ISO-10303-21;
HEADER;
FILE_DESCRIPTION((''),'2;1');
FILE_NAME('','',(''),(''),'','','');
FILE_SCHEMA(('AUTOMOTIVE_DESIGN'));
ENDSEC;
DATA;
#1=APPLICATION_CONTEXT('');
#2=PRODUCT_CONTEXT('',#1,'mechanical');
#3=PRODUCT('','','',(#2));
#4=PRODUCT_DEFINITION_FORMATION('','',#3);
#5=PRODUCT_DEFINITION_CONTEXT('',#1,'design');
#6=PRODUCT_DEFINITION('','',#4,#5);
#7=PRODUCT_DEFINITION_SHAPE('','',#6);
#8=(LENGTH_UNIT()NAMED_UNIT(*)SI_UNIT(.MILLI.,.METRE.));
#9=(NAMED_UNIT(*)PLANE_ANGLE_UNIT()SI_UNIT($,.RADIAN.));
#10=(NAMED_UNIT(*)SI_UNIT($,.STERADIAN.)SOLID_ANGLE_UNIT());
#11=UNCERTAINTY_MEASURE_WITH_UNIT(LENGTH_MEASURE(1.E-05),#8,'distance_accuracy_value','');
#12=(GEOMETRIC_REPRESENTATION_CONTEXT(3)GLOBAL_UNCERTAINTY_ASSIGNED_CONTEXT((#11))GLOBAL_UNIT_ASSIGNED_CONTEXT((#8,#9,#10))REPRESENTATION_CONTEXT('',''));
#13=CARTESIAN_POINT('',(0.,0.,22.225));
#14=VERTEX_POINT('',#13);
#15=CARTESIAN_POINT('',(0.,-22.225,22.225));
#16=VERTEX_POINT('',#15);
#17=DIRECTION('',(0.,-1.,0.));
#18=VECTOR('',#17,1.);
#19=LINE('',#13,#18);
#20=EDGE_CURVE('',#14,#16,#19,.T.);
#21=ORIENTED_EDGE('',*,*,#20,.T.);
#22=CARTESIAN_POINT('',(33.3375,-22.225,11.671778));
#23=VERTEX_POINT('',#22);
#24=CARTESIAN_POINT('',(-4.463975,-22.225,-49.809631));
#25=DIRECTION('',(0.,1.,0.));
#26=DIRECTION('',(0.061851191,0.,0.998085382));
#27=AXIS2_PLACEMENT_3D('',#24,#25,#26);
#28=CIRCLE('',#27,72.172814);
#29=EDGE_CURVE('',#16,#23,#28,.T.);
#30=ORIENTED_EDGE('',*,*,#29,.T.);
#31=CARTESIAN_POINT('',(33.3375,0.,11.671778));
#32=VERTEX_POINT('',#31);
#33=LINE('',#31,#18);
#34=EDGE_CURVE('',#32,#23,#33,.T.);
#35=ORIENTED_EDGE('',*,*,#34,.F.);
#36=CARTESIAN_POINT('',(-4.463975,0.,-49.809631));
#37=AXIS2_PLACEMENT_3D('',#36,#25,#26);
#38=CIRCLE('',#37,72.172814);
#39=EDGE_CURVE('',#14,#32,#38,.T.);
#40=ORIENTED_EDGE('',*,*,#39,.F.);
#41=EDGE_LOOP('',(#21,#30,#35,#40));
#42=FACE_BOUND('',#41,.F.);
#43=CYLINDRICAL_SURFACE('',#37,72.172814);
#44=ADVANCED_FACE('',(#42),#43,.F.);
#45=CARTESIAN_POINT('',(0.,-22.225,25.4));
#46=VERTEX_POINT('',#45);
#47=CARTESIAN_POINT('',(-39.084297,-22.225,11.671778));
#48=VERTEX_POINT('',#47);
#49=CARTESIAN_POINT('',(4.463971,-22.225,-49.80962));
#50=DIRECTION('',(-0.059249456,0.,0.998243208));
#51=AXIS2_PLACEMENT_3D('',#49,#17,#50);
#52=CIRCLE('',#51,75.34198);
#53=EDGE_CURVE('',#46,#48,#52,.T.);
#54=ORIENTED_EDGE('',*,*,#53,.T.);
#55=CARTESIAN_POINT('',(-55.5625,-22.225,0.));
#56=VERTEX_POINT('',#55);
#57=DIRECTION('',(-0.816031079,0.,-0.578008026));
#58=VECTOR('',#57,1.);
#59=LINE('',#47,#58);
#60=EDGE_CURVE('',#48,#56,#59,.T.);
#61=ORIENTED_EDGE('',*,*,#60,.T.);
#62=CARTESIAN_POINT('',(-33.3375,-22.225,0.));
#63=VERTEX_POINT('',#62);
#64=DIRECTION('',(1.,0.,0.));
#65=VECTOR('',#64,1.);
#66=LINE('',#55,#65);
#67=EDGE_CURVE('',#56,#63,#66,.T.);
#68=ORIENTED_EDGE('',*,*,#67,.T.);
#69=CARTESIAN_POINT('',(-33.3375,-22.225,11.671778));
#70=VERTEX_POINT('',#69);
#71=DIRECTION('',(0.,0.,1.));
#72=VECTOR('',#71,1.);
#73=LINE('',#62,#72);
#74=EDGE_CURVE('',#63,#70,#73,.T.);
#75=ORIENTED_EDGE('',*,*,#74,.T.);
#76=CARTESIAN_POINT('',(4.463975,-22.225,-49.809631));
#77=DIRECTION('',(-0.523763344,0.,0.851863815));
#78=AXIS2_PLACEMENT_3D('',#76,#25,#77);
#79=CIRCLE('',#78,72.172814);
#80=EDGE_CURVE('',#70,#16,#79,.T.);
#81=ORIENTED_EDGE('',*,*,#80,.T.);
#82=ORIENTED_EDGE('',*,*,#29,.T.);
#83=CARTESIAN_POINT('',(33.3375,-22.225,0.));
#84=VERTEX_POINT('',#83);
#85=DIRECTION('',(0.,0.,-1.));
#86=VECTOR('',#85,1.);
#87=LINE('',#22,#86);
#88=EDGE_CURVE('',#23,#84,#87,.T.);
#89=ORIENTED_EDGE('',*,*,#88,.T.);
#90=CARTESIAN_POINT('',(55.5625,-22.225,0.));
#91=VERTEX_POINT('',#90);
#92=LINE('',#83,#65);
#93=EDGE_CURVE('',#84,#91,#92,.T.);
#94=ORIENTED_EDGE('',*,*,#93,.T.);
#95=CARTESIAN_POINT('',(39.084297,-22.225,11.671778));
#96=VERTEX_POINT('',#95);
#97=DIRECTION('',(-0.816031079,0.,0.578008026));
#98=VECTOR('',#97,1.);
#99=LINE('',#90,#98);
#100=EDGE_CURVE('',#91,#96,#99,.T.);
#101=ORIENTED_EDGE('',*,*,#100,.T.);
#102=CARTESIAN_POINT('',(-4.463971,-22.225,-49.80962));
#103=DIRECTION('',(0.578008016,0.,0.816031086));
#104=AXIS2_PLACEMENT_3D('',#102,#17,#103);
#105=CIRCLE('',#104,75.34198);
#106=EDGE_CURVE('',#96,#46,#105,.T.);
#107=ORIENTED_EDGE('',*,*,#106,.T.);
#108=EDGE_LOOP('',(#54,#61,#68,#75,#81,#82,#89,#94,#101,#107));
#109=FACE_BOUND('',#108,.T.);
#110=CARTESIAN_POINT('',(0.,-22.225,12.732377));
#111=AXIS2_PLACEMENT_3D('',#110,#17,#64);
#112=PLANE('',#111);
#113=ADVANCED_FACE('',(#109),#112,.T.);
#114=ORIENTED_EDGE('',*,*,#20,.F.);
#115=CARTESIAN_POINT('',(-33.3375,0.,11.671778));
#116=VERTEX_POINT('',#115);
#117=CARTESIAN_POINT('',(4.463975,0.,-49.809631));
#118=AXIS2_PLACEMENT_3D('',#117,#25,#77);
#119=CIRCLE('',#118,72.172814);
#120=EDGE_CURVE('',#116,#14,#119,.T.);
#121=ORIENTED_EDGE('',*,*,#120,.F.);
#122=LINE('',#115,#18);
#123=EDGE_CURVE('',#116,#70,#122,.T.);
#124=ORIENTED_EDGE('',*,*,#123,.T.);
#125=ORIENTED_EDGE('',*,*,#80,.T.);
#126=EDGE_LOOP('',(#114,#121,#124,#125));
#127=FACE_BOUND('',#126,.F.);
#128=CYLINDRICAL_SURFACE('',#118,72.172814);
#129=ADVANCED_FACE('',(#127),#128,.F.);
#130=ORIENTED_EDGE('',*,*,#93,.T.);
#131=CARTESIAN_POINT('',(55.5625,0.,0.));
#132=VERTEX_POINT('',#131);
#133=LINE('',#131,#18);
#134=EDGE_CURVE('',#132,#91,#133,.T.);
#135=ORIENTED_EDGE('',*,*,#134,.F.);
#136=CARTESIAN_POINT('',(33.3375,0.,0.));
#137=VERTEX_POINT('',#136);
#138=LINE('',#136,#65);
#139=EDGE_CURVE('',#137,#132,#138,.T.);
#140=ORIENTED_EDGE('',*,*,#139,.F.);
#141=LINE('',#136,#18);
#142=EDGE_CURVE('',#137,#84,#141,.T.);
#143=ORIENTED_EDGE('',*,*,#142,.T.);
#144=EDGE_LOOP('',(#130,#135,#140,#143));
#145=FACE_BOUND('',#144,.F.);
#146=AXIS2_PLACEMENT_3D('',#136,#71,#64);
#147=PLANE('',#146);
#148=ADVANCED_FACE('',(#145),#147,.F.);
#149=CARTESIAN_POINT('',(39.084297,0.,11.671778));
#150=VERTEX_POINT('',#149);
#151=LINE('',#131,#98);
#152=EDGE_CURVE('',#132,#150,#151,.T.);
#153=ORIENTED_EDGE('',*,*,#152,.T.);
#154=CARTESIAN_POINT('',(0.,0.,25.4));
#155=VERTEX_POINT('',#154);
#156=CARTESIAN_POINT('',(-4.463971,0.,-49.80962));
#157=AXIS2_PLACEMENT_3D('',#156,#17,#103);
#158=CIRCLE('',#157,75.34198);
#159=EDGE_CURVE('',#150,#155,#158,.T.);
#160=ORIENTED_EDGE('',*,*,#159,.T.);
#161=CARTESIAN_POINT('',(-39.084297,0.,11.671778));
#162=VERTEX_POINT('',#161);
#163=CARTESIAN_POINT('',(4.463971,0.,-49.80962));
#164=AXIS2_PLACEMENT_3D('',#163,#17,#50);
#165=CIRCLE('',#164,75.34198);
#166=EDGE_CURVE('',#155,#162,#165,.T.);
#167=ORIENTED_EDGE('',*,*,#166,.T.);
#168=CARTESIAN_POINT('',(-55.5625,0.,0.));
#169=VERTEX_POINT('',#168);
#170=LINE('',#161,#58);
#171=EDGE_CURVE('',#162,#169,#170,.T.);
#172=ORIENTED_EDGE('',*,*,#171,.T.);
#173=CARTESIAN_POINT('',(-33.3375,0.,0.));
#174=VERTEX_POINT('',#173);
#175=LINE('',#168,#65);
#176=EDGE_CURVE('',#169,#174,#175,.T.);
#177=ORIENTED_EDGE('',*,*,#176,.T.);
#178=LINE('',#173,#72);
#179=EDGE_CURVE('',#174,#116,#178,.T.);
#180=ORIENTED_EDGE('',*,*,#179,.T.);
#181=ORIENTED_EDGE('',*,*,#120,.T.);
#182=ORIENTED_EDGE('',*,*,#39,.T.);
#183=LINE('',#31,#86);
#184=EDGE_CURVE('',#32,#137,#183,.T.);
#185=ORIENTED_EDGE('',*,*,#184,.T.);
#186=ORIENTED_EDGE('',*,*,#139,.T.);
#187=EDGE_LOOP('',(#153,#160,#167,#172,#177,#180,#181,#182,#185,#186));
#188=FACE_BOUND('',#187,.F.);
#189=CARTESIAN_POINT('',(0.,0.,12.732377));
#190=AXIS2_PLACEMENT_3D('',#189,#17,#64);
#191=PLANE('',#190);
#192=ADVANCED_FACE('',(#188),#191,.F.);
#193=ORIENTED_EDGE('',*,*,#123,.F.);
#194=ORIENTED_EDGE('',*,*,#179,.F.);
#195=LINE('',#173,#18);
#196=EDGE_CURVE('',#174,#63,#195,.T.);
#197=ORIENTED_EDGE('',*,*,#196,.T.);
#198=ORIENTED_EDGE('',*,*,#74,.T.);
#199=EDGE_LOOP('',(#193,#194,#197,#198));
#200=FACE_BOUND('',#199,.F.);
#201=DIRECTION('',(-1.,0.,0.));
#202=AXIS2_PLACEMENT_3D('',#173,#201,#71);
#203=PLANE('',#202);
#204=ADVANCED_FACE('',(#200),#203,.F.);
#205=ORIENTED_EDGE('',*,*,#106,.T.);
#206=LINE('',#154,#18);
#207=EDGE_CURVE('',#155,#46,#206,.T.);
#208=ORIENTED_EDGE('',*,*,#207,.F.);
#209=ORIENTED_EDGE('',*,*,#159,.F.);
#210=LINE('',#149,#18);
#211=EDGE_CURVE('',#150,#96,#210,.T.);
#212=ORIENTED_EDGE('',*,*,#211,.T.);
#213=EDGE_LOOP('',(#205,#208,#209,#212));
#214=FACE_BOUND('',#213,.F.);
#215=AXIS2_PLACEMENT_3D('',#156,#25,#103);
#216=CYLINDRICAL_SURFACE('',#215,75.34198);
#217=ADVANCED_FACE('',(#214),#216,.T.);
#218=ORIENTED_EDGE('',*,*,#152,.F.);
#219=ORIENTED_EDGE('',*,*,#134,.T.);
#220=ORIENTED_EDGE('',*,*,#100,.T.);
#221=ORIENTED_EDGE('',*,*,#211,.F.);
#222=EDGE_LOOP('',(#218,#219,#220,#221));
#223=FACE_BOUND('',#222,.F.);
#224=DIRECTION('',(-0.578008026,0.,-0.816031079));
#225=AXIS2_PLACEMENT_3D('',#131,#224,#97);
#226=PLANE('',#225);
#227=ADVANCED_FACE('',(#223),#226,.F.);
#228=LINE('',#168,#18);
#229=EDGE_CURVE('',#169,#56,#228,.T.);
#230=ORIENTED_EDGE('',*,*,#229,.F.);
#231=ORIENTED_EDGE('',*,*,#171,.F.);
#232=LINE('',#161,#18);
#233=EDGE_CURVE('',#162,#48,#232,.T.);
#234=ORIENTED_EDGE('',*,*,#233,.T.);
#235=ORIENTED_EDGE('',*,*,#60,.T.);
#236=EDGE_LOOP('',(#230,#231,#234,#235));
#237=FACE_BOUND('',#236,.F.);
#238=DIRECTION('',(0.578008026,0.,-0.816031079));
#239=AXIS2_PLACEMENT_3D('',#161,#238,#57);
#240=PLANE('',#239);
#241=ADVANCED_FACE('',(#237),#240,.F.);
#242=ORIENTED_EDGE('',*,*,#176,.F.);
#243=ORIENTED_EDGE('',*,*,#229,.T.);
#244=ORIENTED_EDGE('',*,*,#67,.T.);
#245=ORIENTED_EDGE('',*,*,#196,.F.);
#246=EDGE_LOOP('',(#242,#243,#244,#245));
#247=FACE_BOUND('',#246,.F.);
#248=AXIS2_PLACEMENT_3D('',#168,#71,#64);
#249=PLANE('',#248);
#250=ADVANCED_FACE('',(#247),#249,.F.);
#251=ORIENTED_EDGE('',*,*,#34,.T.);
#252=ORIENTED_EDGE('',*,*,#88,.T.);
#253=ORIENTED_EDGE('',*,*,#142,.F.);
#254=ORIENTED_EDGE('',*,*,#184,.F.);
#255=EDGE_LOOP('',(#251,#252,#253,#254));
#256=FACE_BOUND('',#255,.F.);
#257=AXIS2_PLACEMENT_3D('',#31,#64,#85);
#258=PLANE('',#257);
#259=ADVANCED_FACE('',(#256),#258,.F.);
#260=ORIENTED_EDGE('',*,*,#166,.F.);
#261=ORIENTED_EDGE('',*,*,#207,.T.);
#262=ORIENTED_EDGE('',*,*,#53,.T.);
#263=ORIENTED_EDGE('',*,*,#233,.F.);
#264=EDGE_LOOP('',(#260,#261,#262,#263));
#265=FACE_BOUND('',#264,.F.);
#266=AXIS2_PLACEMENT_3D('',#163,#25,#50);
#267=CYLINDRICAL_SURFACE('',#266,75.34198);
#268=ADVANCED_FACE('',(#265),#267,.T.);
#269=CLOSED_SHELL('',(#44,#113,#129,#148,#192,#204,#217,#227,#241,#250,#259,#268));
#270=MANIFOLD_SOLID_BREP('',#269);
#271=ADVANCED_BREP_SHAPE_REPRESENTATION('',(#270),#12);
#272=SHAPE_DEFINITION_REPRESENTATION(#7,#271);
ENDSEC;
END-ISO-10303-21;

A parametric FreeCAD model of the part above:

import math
import FreeCAD as App
import Part
import Sketcher
Q = App.Units.Quantity

doc = App.newDocument("Part")
body = doc.addObject("PartDesign::Body", "Body")

# Sketch on XZ plane
sketch1 = body.newObject("Sketcher::SketchObject", "Sketch")
sketch1.AttachmentSupport = (doc.getObject("XZ_Plane"), [""])
sketch1.MapMode = "FlatFace"
sketch1.addGeometry([
    Part.LineSegment(App.Vector(-39.084297, 11.671778, 0), App.Vector(-55.5625, 0, 0)),  # 0
    Part.LineSegment(App.Vector(-55.5625, 0, 0), App.Vector(-33.3375, 0, 0)),  # 1
    Part.LineSegment(App.Vector(-33.3375, 0, 0), App.Vector(-33.3375, 11.671778, 0)),  # 2
    Part.ArcOfCircle(Part.Circle(App.Vector(4.463975, -49.809631, 0), App.Vector(0, 0, 1), 72.172814), math.radians(93.546076), math.radians(121.585029)),  # 3
    Part.ArcOfCircle(Part.Circle(App.Vector(-4.463975, -49.809631, 0), App.Vector(0, 0, 1), 72.172814), math.radians(58.414971), math.radians(86.453924)),  # 4
    Part.LineSegment(App.Vector(33.3375, 11.671778, 0), App.Vector(33.3375, 0, 0)),  # 5
    Part.LineSegment(App.Vector(33.3375, 0, 0), App.Vector(55.5625, 0, 0)),  # 6
    Part.LineSegment(App.Vector(55.5625, 0, 0), App.Vector(39.084297, 11.671778, 0)),  # 7
    Part.ArcOfCircle(Part.Circle(App.Vector(-4.463971, -49.80962, 0), App.Vector(0, 0, 1), 75.34198), math.radians(54.689441), math.radians(86.603267)),  # 8
    Part.ArcOfCircle(Part.Circle(App.Vector(4.463971, -49.80962, 0), App.Vector(0, 0, 1), 75.34198), math.radians(93.396733), math.radians(125.310559)),  # 9
], False)
sketch1.addConstraint([
    Sketcher.Constraint("Coincident", 0, 2, 1, 1),
    Sketcher.Constraint("Coincident", 1, 2, 2, 1),
    Sketcher.Constraint("Coincident", 2, 2, 3, 2),
    Sketcher.Constraint("Coincident", 3, 1, 4, 2),
    Sketcher.Constraint("Coincident", 4, 1, 5, 1),
    Sketcher.Constraint("Coincident", 5, 2, 6, 1),
    Sketcher.Constraint("Coincident", 6, 2, 7, 1),
    Sketcher.Constraint("Tangent", 7, 2, 8, 1),
    Sketcher.Constraint("Coincident", 8, 2, 9, 1),
    Sketcher.Constraint("Tangent", 9, 2, 0, 1),
    Sketcher.Constraint("Horizontal", 1),
    Sketcher.Constraint("Vertical", 2),
    Sketcher.Constraint("Vertical", 5),
    Sketcher.Constraint("Horizontal", 6),
    Sketcher.Constraint("Equal", 3, 4),
    Sketcher.Constraint("Equal", 8, 9),
    Sketcher.Constraint("Symmetric", 1, 2, 5, 2, -1, 1),
    Sketcher.Constraint("Symmetric", 3, 3, 4, 3, -2),
    Sketcher.Constraint("Symmetric", 8, 3, 9, 3, -2),
    Sketcher.Constraint("Symmetric", 0, 2, 6, 2, -2),
    Sketcher.Constraint("Horizontal", 4, 1, 7, 2),
    Sketcher.Constraint("DistanceY", -1, 1, 8, 2, Q("1 in")),
    Sketcher.Constraint("DistanceX", 1, 1, 1, 2, Q("0.875 in")),
    Sketcher.Constraint("DistanceX", 0, 2, -1, 1, Q("2.1875 in")),
    Sketcher.Constraint("DistanceY", -1, 1, 3, 1, Q("0.875 in")),
    Sketcher.Constraint("Radius", 8, Q("75.34198 mm")),
    Sketcher.Constraint("Radius", 3, Q("72.172814 mm")),
    Sketcher.Constraint("DistanceY", 2, 1, 2, 2, Q("11.671778 mm")),
])
pad1 = body.newObject("PartDesign::Pad", "Pad")
pad1.Profile = sketch1
pad1.Length = Q("0.875 in")

doc.recompute()
